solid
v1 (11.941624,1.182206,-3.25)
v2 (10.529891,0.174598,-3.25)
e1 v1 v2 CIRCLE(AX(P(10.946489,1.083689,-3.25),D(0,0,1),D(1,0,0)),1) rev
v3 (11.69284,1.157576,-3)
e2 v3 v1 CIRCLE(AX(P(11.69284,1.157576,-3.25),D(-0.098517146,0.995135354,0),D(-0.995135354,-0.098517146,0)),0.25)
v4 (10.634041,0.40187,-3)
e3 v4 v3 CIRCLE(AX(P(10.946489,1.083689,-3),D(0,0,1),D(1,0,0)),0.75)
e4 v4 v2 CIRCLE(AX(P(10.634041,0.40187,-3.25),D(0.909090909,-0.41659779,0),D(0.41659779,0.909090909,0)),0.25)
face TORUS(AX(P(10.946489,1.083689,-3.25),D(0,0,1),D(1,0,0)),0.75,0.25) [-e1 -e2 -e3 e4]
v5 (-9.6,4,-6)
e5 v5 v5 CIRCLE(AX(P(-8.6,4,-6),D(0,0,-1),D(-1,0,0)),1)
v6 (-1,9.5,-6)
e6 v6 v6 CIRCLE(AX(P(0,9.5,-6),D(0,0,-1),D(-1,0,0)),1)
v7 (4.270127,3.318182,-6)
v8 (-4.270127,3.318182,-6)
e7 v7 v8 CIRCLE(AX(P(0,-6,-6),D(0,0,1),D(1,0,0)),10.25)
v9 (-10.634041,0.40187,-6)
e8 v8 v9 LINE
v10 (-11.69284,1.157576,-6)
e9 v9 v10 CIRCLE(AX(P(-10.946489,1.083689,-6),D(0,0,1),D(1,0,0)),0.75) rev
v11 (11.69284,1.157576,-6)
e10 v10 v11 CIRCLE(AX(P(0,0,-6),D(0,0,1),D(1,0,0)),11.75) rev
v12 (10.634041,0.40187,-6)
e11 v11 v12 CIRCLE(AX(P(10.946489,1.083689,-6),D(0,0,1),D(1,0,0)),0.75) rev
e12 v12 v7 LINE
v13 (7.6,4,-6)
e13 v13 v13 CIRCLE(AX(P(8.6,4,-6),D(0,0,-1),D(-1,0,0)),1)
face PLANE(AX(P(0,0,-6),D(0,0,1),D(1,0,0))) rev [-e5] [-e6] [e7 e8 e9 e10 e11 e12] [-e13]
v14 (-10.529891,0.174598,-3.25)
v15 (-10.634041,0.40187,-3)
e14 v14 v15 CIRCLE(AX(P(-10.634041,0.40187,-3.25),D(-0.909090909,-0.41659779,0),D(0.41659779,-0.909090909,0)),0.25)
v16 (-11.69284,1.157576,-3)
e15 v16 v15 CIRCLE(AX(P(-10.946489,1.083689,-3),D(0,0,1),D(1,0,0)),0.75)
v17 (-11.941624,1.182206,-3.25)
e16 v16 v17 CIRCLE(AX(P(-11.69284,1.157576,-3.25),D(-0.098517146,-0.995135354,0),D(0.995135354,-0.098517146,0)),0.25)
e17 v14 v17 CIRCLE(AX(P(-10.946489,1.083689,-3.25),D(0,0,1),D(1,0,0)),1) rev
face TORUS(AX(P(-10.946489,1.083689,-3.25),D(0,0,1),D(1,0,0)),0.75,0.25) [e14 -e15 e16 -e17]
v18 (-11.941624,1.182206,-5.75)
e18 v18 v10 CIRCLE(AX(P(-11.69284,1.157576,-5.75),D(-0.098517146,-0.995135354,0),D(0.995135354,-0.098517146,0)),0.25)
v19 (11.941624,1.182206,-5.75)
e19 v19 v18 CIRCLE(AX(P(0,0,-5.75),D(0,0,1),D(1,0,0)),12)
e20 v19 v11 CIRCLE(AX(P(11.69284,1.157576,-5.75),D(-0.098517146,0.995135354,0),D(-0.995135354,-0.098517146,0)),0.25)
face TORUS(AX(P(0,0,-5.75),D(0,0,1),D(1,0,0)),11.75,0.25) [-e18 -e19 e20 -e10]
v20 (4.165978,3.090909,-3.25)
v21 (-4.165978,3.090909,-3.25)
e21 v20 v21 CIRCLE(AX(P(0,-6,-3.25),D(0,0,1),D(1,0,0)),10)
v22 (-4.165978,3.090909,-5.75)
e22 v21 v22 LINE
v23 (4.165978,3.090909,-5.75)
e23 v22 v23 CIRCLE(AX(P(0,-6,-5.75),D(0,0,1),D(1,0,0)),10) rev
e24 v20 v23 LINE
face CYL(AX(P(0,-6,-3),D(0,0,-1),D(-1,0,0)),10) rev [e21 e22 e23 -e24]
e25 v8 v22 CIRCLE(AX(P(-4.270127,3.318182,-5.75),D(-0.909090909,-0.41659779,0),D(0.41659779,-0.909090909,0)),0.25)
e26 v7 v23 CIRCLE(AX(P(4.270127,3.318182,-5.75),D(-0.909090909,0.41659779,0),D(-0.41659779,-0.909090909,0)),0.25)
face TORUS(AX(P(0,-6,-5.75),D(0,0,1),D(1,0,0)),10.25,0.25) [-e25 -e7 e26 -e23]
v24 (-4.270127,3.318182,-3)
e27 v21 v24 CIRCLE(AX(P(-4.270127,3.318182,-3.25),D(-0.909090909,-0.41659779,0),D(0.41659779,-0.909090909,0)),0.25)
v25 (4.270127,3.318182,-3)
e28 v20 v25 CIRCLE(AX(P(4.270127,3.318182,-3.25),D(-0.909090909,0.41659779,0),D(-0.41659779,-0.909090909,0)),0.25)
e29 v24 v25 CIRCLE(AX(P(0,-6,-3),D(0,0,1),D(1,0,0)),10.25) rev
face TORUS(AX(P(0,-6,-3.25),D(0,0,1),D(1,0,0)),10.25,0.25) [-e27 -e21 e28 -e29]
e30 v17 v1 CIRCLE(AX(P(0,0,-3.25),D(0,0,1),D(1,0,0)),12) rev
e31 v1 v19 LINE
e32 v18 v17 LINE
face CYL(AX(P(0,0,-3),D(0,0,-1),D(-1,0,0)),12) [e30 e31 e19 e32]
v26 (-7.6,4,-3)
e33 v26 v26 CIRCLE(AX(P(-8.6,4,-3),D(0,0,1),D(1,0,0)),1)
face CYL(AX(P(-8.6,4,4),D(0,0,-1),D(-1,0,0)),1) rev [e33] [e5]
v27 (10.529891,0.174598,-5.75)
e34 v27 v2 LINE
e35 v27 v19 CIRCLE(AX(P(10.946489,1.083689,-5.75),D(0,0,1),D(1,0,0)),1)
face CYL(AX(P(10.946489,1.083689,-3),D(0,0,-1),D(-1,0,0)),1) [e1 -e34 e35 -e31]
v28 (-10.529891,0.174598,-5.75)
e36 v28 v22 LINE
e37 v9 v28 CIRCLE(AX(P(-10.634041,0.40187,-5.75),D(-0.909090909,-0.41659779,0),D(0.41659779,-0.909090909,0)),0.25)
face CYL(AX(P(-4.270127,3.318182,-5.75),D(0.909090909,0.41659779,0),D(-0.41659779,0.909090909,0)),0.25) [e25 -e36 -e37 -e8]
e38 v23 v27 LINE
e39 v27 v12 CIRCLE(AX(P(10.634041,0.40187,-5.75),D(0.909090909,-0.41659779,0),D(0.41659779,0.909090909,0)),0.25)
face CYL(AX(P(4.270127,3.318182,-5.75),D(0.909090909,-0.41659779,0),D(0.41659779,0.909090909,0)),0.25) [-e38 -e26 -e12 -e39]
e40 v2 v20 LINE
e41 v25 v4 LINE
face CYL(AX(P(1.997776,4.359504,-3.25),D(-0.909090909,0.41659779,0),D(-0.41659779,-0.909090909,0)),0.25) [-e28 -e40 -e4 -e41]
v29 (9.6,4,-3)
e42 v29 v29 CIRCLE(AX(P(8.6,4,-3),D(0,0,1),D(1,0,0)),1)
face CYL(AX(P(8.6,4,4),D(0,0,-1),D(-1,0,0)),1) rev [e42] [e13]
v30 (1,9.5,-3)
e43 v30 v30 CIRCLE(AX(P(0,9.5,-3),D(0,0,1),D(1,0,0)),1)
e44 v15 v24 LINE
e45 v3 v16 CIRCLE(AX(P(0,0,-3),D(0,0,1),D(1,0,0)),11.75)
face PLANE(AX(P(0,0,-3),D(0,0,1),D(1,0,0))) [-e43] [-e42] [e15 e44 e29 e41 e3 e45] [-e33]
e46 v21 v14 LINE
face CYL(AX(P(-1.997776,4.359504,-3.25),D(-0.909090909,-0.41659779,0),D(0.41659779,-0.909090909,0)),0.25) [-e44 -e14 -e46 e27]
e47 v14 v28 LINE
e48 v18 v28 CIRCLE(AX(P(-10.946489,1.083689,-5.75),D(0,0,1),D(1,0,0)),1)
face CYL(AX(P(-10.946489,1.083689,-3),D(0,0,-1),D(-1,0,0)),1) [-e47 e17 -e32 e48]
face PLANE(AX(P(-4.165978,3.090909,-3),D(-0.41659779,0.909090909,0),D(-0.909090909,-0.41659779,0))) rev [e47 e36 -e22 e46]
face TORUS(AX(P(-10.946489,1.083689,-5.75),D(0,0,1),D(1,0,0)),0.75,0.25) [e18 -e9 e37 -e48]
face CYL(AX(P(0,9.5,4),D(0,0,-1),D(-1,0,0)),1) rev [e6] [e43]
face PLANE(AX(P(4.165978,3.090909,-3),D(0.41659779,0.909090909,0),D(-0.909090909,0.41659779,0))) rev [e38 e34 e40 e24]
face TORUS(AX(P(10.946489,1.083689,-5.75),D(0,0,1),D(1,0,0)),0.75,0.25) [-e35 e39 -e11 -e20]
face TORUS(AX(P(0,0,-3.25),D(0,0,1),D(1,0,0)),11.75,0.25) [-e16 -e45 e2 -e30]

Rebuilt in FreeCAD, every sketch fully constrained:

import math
import FreeCAD as App
import Part
import Sketcher

V = App.Vector


def edges_at(feature, points):
    """Names of the edges that pass closest to the given points."""
    edges = feature.Shape.Edges
    near = lambda p: min(range(len(edges)), key=lambda i: edges[i].distToShape(Part.Vertex(*p))[0])
    return sorted({f"Edge{near(p) + 1}" for p in points})

doc = App.newDocument("Part")
body = doc.addObject("PartDesign::Body", "Body")

# Sketch on XY plane
sketch1 = body.newObject("Sketcher::SketchObject", "Sketch")
sketch1.AttachmentSupport = (doc.getObject("XY_Plane"), [""])
sketch1.MapMode = "FlatFace"
sketch1.AttachmentOffset = App.Placement(V(0, 0, -6), App.Rotation())
sketch1.addGeometry(Part.LineSegment(V(4, 3, 0), V(12, 0, 0)), False)
sketch1.addGeometry(Part.ArcOfCircle(Part.Circle(V(0, 0, 0), V(0, 0, 1), 12), math.radians(-2), math.radians(182)), False)
sketch1.addGeometry(Part.LineSegment(V(-12, 0, 0), V(-4, 3, 0)), False)
sketch1.addGeometry(Part.ArcOfCircle(Part.Circle(V(0, -6, 0), V(0, 0, 1), 10), math.radians(65), math.radians(115)), False)
sketch1.addConstraint(Sketcher.Constraint("Coincident", 0, 2, 1, 1))
sketch1.addConstraint(Sketcher.Constraint("Coincident", 1, 2, 2, 1))
sketch1.addConstraint(Sketcher.Constraint("Tangent", 2, 2, 3, 2))
sketch1.addConstraint(Sketcher.Constraint("Tangent", 3, 1, 0, 1))
sketch1.addConstraint(Sketcher.Constraint("Coincident", 1, 3, -1, 1))
sketch1.addConstraint(Sketcher.Constraint("Symmetric", 2, 2, 3, 1, -2))
sketch1.addConstraint(Sketcher.Constraint("Radius", 1, 12.0))
sketch1.addConstraint(Sketcher.Constraint("Radius", 3, 10.0))
sketch1.addConstraint(Sketcher.Constraint("DistanceY", 3, 3, -1, 1, 6.0))
sketch1.addConstraint(Sketcher.Constraint("DistanceX", -1, 1, 0, 2, 11.98981))
pad1 = body.newObject("PartDesign::Pad", "Pad")
pad1.Profile = sketch1
pad1.Length = 3
doc.recompute()

fillet = body.newObject("PartDesign::Fillet", "Fillet")
fillet.Base = (pad1, edges_at(pad1, [(11.99, -0.494, -4.5), (-11.99, -0.494, -4.5)]))
fillet.Radius = 1
doc.recompute()

fillet2 = body.newObject("PartDesign::Fillet", "Fillet001")
fillet2.Base = (fillet, edges_at(fillet, [
    (0, 4, -3),
    (7.348, 1.633, -3),
    (-7.348, 1.633, -6),
    (-7.348, 1.633, -3),
    (0, 12, -6),
    (11.527, 0.27, -6),
    (-11.527, 0.27, -6),
    (0, 12, -3),
    (11.527, 0.27, -3),
    (-11.527, 0.27, -3),
    (7.348, 1.633, -6),
    (0, 4, -6),
]))
fillet2.Radius = 0.25

# Sketch on XY plane
sketch2 = body.newObject("Sketcher::SketchObject", "Sketch001")
sketch2.AttachmentSupport = (doc.getObject("XY_Plane"), [""])
sketch2.MapMode = "FlatFace"
sketch2.AttachmentOffset = App.Placement(V(0, 0, -6), App.Rotation())
sketch2.addGeometry(Part.Circle(V(0, 9.5, 0), V(0, 0, 1), 1), False)
sketch2.addGeometry(Part.Circle(V(-8.6, 4, 0), V(0, 0, 1), 1), False)
sketch2.addGeometry(Part.Circle(V(8.6, 4, 0), V(0, 0, 1), 1), False)
sketch2.addConstraint(Sketcher.Constraint("Equal", 0, 1))
sketch2.addConstraint(Sketcher.Constraint("Equal", 1, 2))
sketch2.addConstraint(Sketcher.Constraint("Symmetric", 1, 3, 2, 3, -2))
sketch2.addConstraint(Sketcher.Constraint("PointOnObject", 0, 3, -2))
sketch2.addConstraint(Sketcher.Constraint("Diameter", 0, 2.0))
sketch2.addConstraint(Sketcher.Constraint("DistanceY", -1, 1, 1, 3, 4.0))
sketch2.addConstraint(Sketcher.Constraint("DistanceY", -1, 1, 0, 3, 9.5))
sketch2.addConstraint(Sketcher.Constraint("DistanceX", 1, 3, -1, 1, 8.6))
pocket1 = body.newObject("PartDesign::Pocket", "Pocket")
pocket1.Profile = sketch2
pocket1.Length = 10
pocket1.Reversed = True

doc.recompute()
